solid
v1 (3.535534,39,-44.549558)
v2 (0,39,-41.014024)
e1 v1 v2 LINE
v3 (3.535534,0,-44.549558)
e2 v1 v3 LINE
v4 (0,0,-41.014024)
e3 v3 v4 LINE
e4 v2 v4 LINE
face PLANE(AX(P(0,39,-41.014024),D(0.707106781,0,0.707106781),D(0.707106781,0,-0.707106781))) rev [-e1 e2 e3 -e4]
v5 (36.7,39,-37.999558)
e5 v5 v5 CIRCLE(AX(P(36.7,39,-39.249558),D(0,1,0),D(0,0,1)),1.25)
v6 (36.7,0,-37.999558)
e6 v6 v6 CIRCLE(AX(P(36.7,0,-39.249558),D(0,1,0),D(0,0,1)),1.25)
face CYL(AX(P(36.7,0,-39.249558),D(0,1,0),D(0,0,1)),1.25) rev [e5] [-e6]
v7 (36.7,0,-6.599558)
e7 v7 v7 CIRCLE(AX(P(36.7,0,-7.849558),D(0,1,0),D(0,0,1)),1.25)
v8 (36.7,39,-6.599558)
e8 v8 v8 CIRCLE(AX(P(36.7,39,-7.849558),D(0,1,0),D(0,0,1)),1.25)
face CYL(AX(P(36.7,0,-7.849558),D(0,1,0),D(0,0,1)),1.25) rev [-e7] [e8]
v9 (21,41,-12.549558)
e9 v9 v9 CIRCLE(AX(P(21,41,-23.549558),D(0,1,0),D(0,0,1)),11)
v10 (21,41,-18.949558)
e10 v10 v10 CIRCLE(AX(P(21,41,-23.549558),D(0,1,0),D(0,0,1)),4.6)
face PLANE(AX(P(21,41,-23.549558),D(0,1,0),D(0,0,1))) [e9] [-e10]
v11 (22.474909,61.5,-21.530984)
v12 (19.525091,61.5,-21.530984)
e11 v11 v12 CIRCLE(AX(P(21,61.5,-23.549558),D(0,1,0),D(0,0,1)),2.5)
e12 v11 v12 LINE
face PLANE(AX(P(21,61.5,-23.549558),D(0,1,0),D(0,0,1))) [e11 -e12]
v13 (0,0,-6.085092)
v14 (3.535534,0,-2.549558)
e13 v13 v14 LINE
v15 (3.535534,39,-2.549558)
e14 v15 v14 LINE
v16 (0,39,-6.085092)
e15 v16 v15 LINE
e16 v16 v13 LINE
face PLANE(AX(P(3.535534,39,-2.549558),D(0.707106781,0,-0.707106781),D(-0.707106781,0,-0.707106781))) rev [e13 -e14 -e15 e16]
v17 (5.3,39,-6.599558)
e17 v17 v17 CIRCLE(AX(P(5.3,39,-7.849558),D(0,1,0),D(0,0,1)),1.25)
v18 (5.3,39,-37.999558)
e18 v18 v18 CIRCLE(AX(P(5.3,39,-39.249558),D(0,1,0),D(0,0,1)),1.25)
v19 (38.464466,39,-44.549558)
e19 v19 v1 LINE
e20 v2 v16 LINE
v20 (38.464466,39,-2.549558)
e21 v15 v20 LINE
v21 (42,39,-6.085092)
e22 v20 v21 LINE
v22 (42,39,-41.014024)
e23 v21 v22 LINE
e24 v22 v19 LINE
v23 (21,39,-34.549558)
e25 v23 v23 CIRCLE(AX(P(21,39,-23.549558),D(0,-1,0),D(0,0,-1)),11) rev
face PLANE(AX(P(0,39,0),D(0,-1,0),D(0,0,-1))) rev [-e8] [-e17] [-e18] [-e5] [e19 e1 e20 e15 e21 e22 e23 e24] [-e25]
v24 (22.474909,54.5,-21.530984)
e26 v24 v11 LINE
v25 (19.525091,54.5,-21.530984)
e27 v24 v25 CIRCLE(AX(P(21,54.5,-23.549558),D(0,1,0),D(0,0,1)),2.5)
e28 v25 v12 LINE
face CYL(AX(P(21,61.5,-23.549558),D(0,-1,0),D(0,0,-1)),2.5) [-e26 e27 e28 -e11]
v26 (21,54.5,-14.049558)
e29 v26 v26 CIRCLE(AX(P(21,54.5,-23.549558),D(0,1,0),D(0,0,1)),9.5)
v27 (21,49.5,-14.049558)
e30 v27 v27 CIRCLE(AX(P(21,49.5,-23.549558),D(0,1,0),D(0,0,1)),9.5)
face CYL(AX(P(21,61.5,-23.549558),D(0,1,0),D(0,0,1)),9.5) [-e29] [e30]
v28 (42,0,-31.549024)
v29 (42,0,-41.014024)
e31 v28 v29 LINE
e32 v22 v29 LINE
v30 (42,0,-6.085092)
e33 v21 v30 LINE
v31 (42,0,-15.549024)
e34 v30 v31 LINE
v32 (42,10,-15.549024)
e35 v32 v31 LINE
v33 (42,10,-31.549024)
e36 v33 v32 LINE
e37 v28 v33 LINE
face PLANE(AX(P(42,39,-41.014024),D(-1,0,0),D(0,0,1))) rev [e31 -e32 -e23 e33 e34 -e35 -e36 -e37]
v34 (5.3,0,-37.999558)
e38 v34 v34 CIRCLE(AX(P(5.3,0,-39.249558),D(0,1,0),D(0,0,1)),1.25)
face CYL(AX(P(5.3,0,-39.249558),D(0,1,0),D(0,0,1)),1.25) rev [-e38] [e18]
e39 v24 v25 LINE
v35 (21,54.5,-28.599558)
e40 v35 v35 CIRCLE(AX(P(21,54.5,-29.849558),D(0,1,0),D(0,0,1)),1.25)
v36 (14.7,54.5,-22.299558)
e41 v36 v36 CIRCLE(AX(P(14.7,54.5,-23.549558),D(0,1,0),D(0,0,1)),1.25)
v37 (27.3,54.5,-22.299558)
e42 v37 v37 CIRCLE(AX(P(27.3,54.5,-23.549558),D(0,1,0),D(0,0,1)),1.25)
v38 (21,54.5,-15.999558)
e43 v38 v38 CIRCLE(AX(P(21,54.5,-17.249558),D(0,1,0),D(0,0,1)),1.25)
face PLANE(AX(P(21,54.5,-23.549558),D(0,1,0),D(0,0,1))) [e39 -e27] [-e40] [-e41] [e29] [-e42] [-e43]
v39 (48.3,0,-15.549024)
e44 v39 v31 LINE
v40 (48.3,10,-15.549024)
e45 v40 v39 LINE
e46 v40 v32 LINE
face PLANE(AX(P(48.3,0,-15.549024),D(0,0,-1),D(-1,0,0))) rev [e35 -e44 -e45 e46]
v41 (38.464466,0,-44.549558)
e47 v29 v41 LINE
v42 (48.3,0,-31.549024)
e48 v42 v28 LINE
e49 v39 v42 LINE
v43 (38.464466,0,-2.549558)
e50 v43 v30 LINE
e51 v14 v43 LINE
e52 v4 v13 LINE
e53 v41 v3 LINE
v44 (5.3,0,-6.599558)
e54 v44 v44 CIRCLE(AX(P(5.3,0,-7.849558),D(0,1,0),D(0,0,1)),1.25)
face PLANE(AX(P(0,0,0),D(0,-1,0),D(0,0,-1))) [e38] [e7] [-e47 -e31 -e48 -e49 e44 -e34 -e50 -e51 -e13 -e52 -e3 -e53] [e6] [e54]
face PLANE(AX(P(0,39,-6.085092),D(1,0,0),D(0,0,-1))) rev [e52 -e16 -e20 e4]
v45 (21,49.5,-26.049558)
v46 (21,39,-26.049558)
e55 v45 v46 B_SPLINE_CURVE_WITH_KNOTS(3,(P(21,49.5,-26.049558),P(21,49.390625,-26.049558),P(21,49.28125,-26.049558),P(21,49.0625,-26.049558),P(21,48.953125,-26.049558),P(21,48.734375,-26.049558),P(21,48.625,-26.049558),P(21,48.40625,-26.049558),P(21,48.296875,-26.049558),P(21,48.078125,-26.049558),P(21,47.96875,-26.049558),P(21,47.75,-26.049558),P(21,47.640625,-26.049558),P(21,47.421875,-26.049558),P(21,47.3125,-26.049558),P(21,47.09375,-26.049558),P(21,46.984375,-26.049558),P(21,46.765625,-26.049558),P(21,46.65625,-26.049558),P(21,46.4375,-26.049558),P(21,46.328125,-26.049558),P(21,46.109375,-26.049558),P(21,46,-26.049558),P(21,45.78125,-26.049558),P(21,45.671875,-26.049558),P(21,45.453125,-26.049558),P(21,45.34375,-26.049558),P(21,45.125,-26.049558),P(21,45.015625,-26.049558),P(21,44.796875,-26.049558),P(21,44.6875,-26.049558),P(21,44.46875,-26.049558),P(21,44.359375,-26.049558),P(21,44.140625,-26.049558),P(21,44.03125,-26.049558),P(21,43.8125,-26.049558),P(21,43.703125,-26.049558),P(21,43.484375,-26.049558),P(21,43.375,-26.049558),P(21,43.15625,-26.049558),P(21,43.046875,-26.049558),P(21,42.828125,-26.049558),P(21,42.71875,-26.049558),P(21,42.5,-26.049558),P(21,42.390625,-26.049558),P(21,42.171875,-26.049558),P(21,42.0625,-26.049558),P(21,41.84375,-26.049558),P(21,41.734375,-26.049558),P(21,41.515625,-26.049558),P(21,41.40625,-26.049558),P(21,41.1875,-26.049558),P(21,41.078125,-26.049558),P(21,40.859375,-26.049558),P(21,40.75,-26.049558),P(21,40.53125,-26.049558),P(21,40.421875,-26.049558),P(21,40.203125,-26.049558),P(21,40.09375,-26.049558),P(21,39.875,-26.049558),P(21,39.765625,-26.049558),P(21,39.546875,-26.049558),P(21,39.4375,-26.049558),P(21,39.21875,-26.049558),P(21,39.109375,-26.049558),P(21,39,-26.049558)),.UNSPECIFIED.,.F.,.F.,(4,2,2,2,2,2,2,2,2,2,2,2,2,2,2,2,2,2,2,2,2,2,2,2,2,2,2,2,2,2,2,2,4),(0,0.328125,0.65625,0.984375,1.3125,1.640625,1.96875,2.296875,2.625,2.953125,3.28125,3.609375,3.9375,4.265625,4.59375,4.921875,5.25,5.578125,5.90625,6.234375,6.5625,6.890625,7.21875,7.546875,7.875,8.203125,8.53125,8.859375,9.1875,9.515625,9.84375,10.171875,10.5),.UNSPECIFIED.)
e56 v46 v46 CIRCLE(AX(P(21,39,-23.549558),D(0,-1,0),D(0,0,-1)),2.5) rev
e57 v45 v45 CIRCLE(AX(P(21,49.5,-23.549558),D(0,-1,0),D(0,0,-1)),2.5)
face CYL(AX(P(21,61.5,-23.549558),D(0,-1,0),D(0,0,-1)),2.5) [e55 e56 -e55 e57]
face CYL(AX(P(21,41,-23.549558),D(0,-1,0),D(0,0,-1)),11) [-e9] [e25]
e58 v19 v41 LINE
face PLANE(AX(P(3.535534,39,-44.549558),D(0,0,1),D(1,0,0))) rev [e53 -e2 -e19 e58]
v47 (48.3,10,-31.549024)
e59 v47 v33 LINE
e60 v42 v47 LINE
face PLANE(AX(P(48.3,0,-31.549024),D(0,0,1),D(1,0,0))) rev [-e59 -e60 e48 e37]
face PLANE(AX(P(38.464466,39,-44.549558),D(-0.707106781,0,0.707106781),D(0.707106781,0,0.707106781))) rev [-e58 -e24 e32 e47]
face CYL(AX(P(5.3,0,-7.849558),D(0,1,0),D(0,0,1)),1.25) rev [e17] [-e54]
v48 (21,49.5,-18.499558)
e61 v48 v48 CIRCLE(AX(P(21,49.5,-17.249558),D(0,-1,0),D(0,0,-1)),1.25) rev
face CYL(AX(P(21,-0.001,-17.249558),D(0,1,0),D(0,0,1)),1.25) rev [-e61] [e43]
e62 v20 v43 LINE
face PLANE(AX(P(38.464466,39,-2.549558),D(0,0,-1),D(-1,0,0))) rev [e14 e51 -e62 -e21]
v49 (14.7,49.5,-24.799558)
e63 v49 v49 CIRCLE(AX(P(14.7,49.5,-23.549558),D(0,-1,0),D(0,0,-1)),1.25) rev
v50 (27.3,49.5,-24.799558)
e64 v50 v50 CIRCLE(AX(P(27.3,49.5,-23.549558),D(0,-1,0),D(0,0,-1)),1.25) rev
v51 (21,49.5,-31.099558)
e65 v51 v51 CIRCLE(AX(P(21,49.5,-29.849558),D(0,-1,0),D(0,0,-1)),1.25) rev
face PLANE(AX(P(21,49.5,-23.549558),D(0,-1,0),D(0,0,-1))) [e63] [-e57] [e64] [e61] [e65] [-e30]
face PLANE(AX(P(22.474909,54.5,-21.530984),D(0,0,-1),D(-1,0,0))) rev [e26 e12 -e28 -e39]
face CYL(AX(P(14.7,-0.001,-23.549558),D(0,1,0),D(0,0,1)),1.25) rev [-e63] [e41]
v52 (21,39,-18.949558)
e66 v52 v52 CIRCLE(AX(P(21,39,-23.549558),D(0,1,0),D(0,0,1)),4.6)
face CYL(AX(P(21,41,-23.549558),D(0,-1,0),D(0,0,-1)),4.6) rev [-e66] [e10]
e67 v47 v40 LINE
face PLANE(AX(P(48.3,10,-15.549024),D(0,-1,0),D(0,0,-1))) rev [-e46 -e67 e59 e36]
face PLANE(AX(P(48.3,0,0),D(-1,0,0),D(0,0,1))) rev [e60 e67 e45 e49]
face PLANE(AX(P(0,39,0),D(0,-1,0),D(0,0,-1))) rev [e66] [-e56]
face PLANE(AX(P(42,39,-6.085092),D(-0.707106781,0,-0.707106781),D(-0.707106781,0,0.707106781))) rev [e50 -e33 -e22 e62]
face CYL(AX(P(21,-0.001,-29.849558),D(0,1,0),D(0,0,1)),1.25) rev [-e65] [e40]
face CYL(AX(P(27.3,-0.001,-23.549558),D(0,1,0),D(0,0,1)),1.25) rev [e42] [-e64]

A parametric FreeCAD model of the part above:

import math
import FreeCAD as App
import Part
import Sketcher
from FreeCAD import Vector
Q = App.Units.Quantity

doc = App.newDocument("Part")
params = doc.addObject("Spreadsheet::Sheet", "Params")
for row, (alias, value) in enumerate([
    ("sketch1_length", "5 mm"),
    ("pad1_length", "39 mm"),
    ("sketch2_diameter", "2.5 mm"),
    ("pocket1_length", "39 mm"),
    ("sketch3_diameter", "22 mm"),
    ("sketch3_diameter2", "9.2 mm"),
    ("pad2_length", "2 mm"),
    ("sketch4_diameter", "5 mm"),
    ("pad3_length", "22.5 mm"),
    ("sketch5_width", "5 mm"),
    ("sketch5_height", "9.5 mm"),
    ("revolution_angle", "360 deg"),
    ("sketch6_diameter", "2.5 mm"),
    ("sketch7_diameter", "2.5 mm"),
    ("sketch8_diameter", "2.5 mm"),
    ("sketch9_diameter", "2.5 mm"),
    ("sketch10_radius", "2.5 mm"),
    ("pocket6_length", "7 mm"),
    ("sketch11_width", "10 mm"),
    ("sketch11_height", "16 mm"),
    ("pad4_length", "6.3 mm"),
], start=1):
    params.set(f"A{row}", alias)
    params.set(f"B{row}", "=" + value)
    params.setAlias(f"B{row}", alias)

body = doc.addObject("PartDesign::Body", "Body")

# Sketch on XZ plane
sketch1 = body.newObject("Sketcher::SketchObject", "Sketch")
sketch1.AttachmentSupport = (doc.getObject("XZ_Plane"), [""])
sketch1.MapMode = "FlatFace"
sketch1.addGeometry(Part.LineSegment(Vector(0, -6, 0), Vector(4, -3, 0)), False)
sketch1.addGeometry(Part.LineSegment(Vector(4, -3, 0), Vector(38, -3, 0)), False)
sketch1.addGeometry(Part.LineSegment(Vector(38, -3, 0), Vector(42, -6, 0)), False)
sketch1.addGeometry(Part.LineSegment(Vector(42, -6, 0), Vector(42, -41, 0)), False)
sketch1.addGeometry(Part.LineSegment(Vector(42, -41, 0), Vector(38, -45, 0)), False)
sketch1.addGeometry(Part.LineSegment(Vector(38, -45, 0), Vector(4, -45, 0)), False)
sketch1.addGeometry(Part.LineSegment(Vector(4, -45, 0), Vector(0, -41, 0)), False)
sketch1.addGeometry(Part.LineSegment(Vector(0, -41, 0), Vector(0, -6, 0)), False)
sketch1.addConstraint(Sketcher.Constraint("Coincident", 0, 2, 1, 1))
sketch1.addConstraint(Sketcher.Constraint("Coincident", 1, 2, 2, 1))
sketch1.addConstraint(Sketcher.Constraint("Coincident", 2, 2, 3, 1))
sketch1.addConstraint(Sketcher.Constraint("Coincident", 3, 2, 4, 1))
sketch1.addConstraint(Sketcher.Constraint("Coincident", 4, 2, 5, 1))
sketch1.addConstraint(Sketcher.Constraint("Coincident", 5, 2, 6, 1))
sketch1.addConstraint(Sketcher.Constraint("Coincident", 6, 2, 7, 1))
sketch1.addConstraint(Sketcher.Constraint("Coincident", 7, 2, 0, 1))
sketch1.addConstraint(Sketcher.Constraint("Horizontal", 1))
sketch1.addConstraint(Sketcher.Constraint("Vertical", 3))
sketch1.addConstraint(Sketcher.Constraint("Horizontal", 5))
sketch1.addConstraint(Sketcher.Constraint("Vertical", 7))
sketch1.addConstraint(Sketcher.Constraint("PointOnObject", 6, 2, -2))
sketch1.addConstraint(Sketcher.Constraint("Perpendicular", 0, 2))
sketch1.addConstraint(Sketcher.Constraint("Perpendicular", 2, 4))
sketch1.addConstraint(Sketcher.Constraint("Perpendicular", 4, 6))
sketch1.addConstraint(Sketcher.Constraint("Horizontal", 3, 2, 6, 2))
sketch1.addConstraint(Sketcher.Constraint("Horizontal", 2, 2, 7, 2))
sketch1.addConstraint(Sketcher.Constraint("Vertical", 1, 2, 4, 2))
sketch1.addConstraint(Sketcher.Constraint("Vertical", 0, 2, 5, 2))
sketch1.addConstraint(Sketcher.Constraint("Equal", 5, 3))
sketch1.addConstraint(Sketcher.Constraint("Distance", 0, Q("5 mm")))
sketch1.addConstraint(Sketcher.Constraint("DistanceX", -1, 1, 2, 2, Q("42 mm")))
sketch1.addConstraint(Sketcher.Constraint("DistanceY", 0, 2, -1, 1, Q("2.549558 mm")))
sketch1.setExpression("Constraints[21]", "Params.sketch1_length")
pad1 = body.newObject("PartDesign::Pad", "Pad")
pad1.Profile = sketch1
pad1.setExpression("Length", "Params.pad1_length")
pad1.Reversed = True

# Sketch on XZ plane
sketch2 = body.newObject("Sketcher::SketchObject", "Sketch001")
sketch2.AttachmentSupport = (doc.getObject("XZ_Plane"), [""])
sketch2.MapMode = "FlatFace"
sketch2.AttachmentOffset = App.Placement(Vector(0, 0, -39), App.Rotation())
sketch2.addGeometry(Part.Circle(Vector(5.3, -39.2, 0), Vector(0, 0, 1), 1.2), False)
sketch2.addGeometry(Part.Circle(Vector(36.7, -39.2, 0), Vector(0, 0, 1), 1.2), False)
sketch2.addGeometry(Part.Circle(Vector(36.7, -7.8, 0), Vector(0, 0, 1), 1.2), False)
sketch2.addGeometry(Part.Circle(Vector(5.3, -7.8, 0), Vector(0, 0, 1), 1.2), False)
sketch2.addConstraint(Sketcher.Constraint("Equal", 0, 1))
sketch2.addConstraint(Sketcher.Constraint("Equal", 1, 2))
sketch2.addConstraint(Sketcher.Constraint("Equal", 2, 3))
sketch2.addConstraint(Sketcher.Constraint("Horizontal", 0, 3, 1, 3))
sketch2.addConstraint(Sketcher.Constraint("Horizontal", 2, 3, 3, 3))
sketch2.addConstraint(Sketcher.Constraint("Vertical", 1, 3, 2, 3))
sketch2.addConstraint(Sketcher.Constraint("Vertical", 0, 3, 3, 3))
sketch2.addConstraint(Sketcher.Constraint("Diameter", 0, Q("2.5 mm")))
sketch2.addConstraint(Sketcher.Constraint("DistanceX", -1, 1, 0, 3, Q("5.3 mm")))
sketch2.addConstraint(Sketcher.Constraint("DistanceX", -1, 1, 1, 3, Q("36.7 mm")))
sketch2.addConstraint(Sketcher.Constraint("DistanceY", 1, 3, 2, 3, Q("31.4 mm")))
sketch2.addConstraint(Sketcher.Constraint("DistanceY", 0, 3, -1, 1, Q("39.249558 mm")))
sketch2.setExpression("Constraints[7]", "Params.sketch2_diameter")
pocket1 = body.newObject("PartDesign::Pocket", "Pocket")
pocket1.Profile = sketch2
pocket1.setExpression("Length", "Params.pocket1_length")
pocket1.Reversed = True

# Sketch on XZ plane
sketch3 = body.newObject("Sketcher::SketchObject", "Sketch002")
sketch3.AttachmentSupport = (doc.getObject("XZ_Plane"), [""])
sketch3.MapMode = "FlatFace"
sketch3.AttachmentOffset = App.Placement(Vector(0, 0, -39), App.Rotation())
sketch3.addGeometry(Part.Circle(Vector(21, -23.5, 0), Vector(0, 0, 1), 11), False)
sketch3.addGeometry(Part.Circle(Vector(21, -23.5, 0), Vector(0, 0, 1), 4.6), False)
sketch3.addConstraint(Sketcher.Constraint("Coincident", 1, 3, 0, 3))
sketch3.addConstraint(Sketcher.Constraint("Diameter", 0, Q("22 mm")))
sketch3.addConstraint(Sketcher.Constraint("Diameter", 1, Q("9.2 mm")))
sketch3.addConstraint(Sketcher.Constraint("DistanceX", -1, 1, 0, 3, Q("21 mm")))
sketch3.addConstraint(Sketcher.Constraint("DistanceY", 0, 3, -1, 1, Q("23.549558 mm")))
sketch3.setExpression("Constraints[1]", "Params.sketch3_diameter")
sketch3.setExpression("Constraints[2]", "Params.sketch3_diameter2")
pad2 = body.newObject("PartDesign::Pad", "Pad001")
pad2.Profile = sketch3
pad2.setExpression("Length", "Params.pad2_length")
pad2.Reversed = True

# Sketch on XZ plane
sketch4 = body.newObject("Sketcher::SketchObject", "Sketch003")
sketch4.AttachmentSupport = (doc.getObject("XZ_Plane"), [""])
sketch4.MapMode = "FlatFace"
sketch4.AttachmentOffset = App.Placement(Vector(0, 0, -39), App.Rotation())
sketch4.addGeometry(Part.Circle(Vector(21, -23.5, 0), Vector(0, 0, 1), 2.5), False)
sketch4.addConstraint(Sketcher.Constraint("Diameter", 0, Q("5 mm")))
sketch4.addConstraint(Sketcher.Constraint("DistanceX", -1, 1, 0, 3, Q("21 mm")))
sketch4.addConstraint(Sketcher.Constraint("DistanceY", 0, 3, -1, 1, Q("23.549558 mm")))
sketch4.setExpression("Constraints[0]", "Params.sketch4_diameter")
pad3 = body.newObject("PartDesign::Pad", "Pad002")
pad3.Profile = sketch4
pad3.setExpression("Length", "Params.pad3_length")
pad3.Reversed = True

# Sketch on YZ plane
sketch5 = body.newObject("Sketcher::SketchObject", "Sketch004")
sketch5.AttachmentSupport = (doc.getObject("YZ_Plane"), [""])
sketch5.MapMode = "FlatFace"
sketch5.AttachmentOffset = App.Placement(Vector(0, 0, 21), App.Rotation())
sketch5.addGeometry(Part.LineSegment(Vector(54, -14, 0), Vector(50, -14, 0)), False)
sketch5.addGeometry(Part.LineSegment(Vector(50, -14, 0), Vector(50, -24, 0)), False)
sketch5.addGeometry(Part.LineSegment(Vector(50, -24, 0), Vector(54, -24, 0)), False)
sketch5.addGeometry(Part.LineSegment(Vector(54, -24, 0), Vector(54, -14, 0)), False)
sketch5.addGeometry(Part.LineSegment(Vector(54, -24, 0), Vector(50, -24, 0)), True)  # axis
sketch5.addConstraint(Sketcher.Constraint("Coincident", 0, 2, 1, 1))
sketch5.addConstraint(Sketcher.Constraint("Coincident", 1, 2, 2, 1))
sketch5.addConstraint(Sketcher.Constraint("Coincident", 2, 2, 3, 1))
sketch5.addConstraint(Sketcher.Constraint("Coincident", 3, 2, 0, 1))
sketch5.addConstraint(Sketcher.Constraint("Horizontal", 0))
sketch5.addConstraint(Sketcher.Constraint("Vertical", 1))
sketch5.addConstraint(Sketcher.Constraint("Horizontal", 2))
sketch5.addConstraint(Sketcher.Constraint("Vertical", 3))
sketch5.addConstraint(Sketcher.Constraint("Horizontal", 4))
sketch5.addConstraint(Sketcher.Constraint("Coincident", 4, 1, 2, 2))
sketch5.addConstraint(Sketcher.Constraint("Vertical", 0, 2, 4, 2))
sketch5.addConstraint(Sketcher.Constraint("DistanceX", 0, 2, 0, 1, Q("5 mm")))
sketch5.addConstraint(Sketcher.Constraint("DistanceY", 1, 2, 1, 1, Q("9.5 mm")))
sketch5.addConstraint(Sketcher.Constraint("DistanceX", -1, 1, 0, 2, Q("49.5 mm")))
sketch5.addConstraint(Sketcher.Constraint("DistanceY", 0, 2, -1, 1, Q("14.049558 mm")))
sketch5.setExpression("Constraints[11]", "Params.sketch5_width")
sketch5.setExpression("Constraints[12]", "Params.sketch5_height")
revolution = body.newObject("PartDesign::Revolution", "Revolution")
revolution.Profile = sketch5
revolution.ReferenceAxis = (sketch5, ["Axis0"])
revolution.setExpression("Angle", "Params.revolution_angle")

# Sketch on XZ plane
sketch6 = body.newObject("Sketcher::SketchObject", "Sketch005")
sketch6.AttachmentSupport = (doc.getObject("XZ_Plane"), [""])
sketch6.MapMode = "FlatFace"
sketch6.AttachmentOffset = App.Placement(Vector(0, 0, -54.5), App.Rotation())
sketch6.addGeometry(Part.Circle(Vector(27.3, -23.5, 0), Vector(0, 0, 1), 1.2), False)
sketch6.addConstraint(Sketcher.Constraint("Diameter", 0, Q("2.5 mm")))
sketch6.addConstraint(Sketcher.Constraint("DistanceX", -1, 1, 0, 3, Q("27.3 mm")))
sketch6.addConstraint(Sketcher.Constraint("DistanceY", 0, 3, -1, 1, Q("23.549558 mm")))
sketch6.setExpression("Constraints[0]", "Params.sketch6_diameter")
pocket2 = body.newObject("PartDesign::Pocket", "Pocket001")
pocket2.Profile = sketch6
pocket2.Type = "UpToFirst"
pocket2.Reversed = True

# Sketch on XZ plane
sketch7 = body.newObject("Sketcher::SketchObject", "Sketch006")
sketch7.AttachmentSupport = (doc.getObject("XZ_Plane"), [""])
sketch7.MapMode = "FlatFace"
sketch7.AttachmentOffset = App.Placement(Vector(0, 0, -54.5), App.Rotation())
sketch7.addGeometry(Part.Circle(Vector(21, -17.2, 0), Vector(0, 0, 1), 1.2), False)
sketch7.addConstraint(Sketcher.Constraint("Diameter", 0, Q("2.5 mm")))
sketch7.addConstraint(Sketcher.Constraint("DistanceX", -1, 1, 0, 3, Q("21 mm")))
sketch7.addConstraint(Sketcher.Constraint("DistanceY", 0, 3, -1, 1, Q("17.249558 mm")))
sketch7.setExpression("Constraints[0]", "Params.sketch7_diameter")
pocket3 = body.newObject("PartDesign::Pocket", "Pocket002")
pocket3.Profile = sketch7
pocket3.Type = "UpToFirst"
pocket3.Reversed = True

# Sketch on XZ plane
sketch8 = body.newObject("Sketcher::SketchObject", "Sketch007")
sketch8.AttachmentSupport = (doc.getObject("XZ_Plane"), [""])
sketch8.MapMode = "FlatFace"
sketch8.AttachmentOffset = App.Placement(Vector(0, 0, -54.5), App.Rotation())
sketch8.addGeometry(Part.Circle(Vector(14.7, -23.5, 0), Vector(0, 0, 1), 1.2), False)
sketch8.addConstraint(Sketcher.Constraint("Diameter", 0, Q("2.5 mm")))
sketch8.addConstraint(Sketcher.Constraint("DistanceX", -1, 1, 0, 3, Q("14.7 mm")))
sketch8.addConstraint(Sketcher.Constraint("DistanceY", 0, 3, -1, 1, Q("23.549558 mm")))
sketch8.setExpression("Constraints[0]", "Params.sketch8_diameter")
pocket4 = body.newObject("PartDesign::Pocket", "Pocket003")
pocket4.Profile = sketch8
pocket4.Type = "UpToFirst"
pocket4.Reversed = True

# Sketch on XZ plane
sketch9 = body.newObject("Sketcher::SketchObject", "Sketch008")
sketch9.AttachmentSupport = (doc.getObject("XZ_Plane"), [""])
sketch9.MapMode = "FlatFace"
sketch9.AttachmentOffset = App.Placement(Vector(0, 0, -54.5), App.Rotation())
sketch9.addGeometry(Part.Circle(Vector(21, -29.8, 0), Vector(0, 0, 1), 1.2), False)
sketch9.addConstraint(Sketcher.Constraint("Diameter", 0, Q("2.5 mm")))
sketch9.addConstraint(Sketcher.Constraint("DistanceX", -1, 1, 0, 3, Q("21 mm")))
sketch9.addConstraint(Sketcher.Constraint("DistanceY", 0, 3, -1, 1, Q("29.849558 mm")))
sketch9.setExpression("Constraints[0]", "Params.sketch9_diameter")
pocket5 = body.newObject("PartDesign::Pocket", "Pocket004")
pocket5.Profile = sketch9
pocket5.Type = "UpToFirst"
pocket5.Reversed = True

# Sketch on XZ plane
sketch10 = body.newObject("Sketcher::SketchObject", "Sketch009")
sketch10.AttachmentSupport = (doc.getObject("XZ_Plane"), [""])
sketch10.MapMode = "FlatFace"
sketch10.AttachmentOffset = App.Placement(Vector(0, 0, -54.5), App.Rotation())
sketch10.addGeometry(Part.LineSegment(Vector(22.5, -21.5, 0), Vector(19.5, -21.5, 0)), False)
sketch10.addGeometry(Part.ArcOfCircle(Part.Circle(Vector(21, -23.5, 0), Vector(0, 0, 1), 2.5), math.radians(54), math.radians(126)), False)
sketch10.addConstraint(Sketcher.Constraint("Coincident", 0, 1, 1, 1))
sketch10.addConstraint(Sketcher.Constraint("Coincident", 1, 2, 0, 2))
sketch10.addConstraint(Sketcher.Constraint("Horizontal", 0))
sketch10.addConstraint(Sketcher.Constraint("Radius", 1, Q("2.5 mm")))
sketch10.addConstraint(Sketcher.Constraint("DistanceX", -1, 1, 1, 3, Q("21 mm")))
sketch10.addConstraint(Sketcher.Constraint("DistanceX", 0, 2, 0, 1, Q("2.949818 mm")))
sketch10.addConstraint(Sketcher.Constraint("DistanceY", 1, 3, -1, 1, Q("23.549558 mm")))
sketch10.setExpression("Constraints[3]", "Params.sketch10_radius")
pocket6 = body.newObject("PartDesign::Pocket", "Pocket005")
pocket6.Profile = sketch10
pocket6.setExpression("Length", "Params.pocket6_length")

# Sketch on YZ plane
sketch11 = body.newObject("Sketcher::SketchObject", "Sketch010")
sketch11.AttachmentSupport = (doc.getObject("YZ_Plane"), [""])
sketch11.MapMode = "FlatFace"
sketch11.AttachmentOffset = App.Placement(Vector(0, 0, 42), App.Rotation())
sketch11.addGeometry(Part.LineSegment(Vector(10, -16, 0), Vector(0, -16, 0)), False)
sketch11.addGeometry(Part.LineSegment(Vector(0, -16, 0), Vector(0, -32, 0)), False)
sketch11.addGeometry(Part.LineSegment(Vector(0, -32, 0), Vector(10, -32, 0)), False)
sketch11.addGeometry(Part.LineSegment(Vector(10, -32, 0), Vector(10, -16, 0)), False)
sketch11.addConstraint(Sketcher.Constraint("Coincident", 0, 2, 1, 1))
sketch11.addConstraint(Sketcher.Constraint("Coincident", 1, 2, 2, 1))
sketch11.addConstraint(Sketcher.Constraint("Coincident", 2, 2, 3, 1))
sketch11.addConstraint(Sketcher.Constraint("Coincident", 3, 2, 0, 1))
sketch11.addConstraint(Sketcher.Constraint("Horizontal", 0))
sketch11.addConstraint(Sketcher.Constraint("Vertical", 1))
sketch11.addConstraint(Sketcher.Constraint("Horizontal", 2))
sketch11.addConstraint(Sketcher.Constraint("Vertical", 3))
sketch11.addConstraint(Sketcher.Constraint("PointOnObject", 0, 2, -2))
sketch11.addConstraint(Sketcher.Constraint("DistanceX", 0, 2, 0, 1, Q("10 mm")))
sketch11.addConstraint(Sketcher.Constraint("DistanceY", 1, 2, 1, 1, Q("16 mm")))
sketch11.addConstraint(Sketcher.Constraint("DistanceY", 0, 2, -1, 1, Q("15.549024 mm")))
sketch11.setExpression("Constraints[9]", "Params.sketch11_width")
sketch11.setExpression("Constraints[10]", "Params.sketch11_height")
pad4 = body.newObject("PartDesign::Pad", "Pad003")
pad4.Profile = sketch11
pad4.setExpression("Length", "Params.pad4_length")

doc.recompute()
